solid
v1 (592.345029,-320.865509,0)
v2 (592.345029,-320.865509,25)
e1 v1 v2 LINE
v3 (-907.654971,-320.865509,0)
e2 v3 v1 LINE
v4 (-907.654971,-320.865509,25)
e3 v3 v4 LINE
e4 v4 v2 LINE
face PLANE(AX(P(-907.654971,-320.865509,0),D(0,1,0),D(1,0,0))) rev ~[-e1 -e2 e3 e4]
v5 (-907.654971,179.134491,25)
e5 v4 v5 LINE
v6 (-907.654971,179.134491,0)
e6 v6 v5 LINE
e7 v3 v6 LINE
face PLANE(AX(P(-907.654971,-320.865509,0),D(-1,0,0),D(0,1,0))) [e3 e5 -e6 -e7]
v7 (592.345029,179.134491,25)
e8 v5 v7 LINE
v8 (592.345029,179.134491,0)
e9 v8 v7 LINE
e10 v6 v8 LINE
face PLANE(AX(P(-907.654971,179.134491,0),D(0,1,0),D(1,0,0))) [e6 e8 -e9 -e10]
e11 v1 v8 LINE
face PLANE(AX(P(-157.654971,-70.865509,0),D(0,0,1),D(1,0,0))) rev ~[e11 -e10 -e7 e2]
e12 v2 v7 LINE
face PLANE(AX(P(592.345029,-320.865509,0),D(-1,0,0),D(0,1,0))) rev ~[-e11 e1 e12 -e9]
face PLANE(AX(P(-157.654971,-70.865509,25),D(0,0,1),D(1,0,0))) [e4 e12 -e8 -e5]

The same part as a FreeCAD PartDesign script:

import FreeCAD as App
import Part
import Sketcher
from FreeCAD import Vector


def add_polygon(sketch, points):
    """Adds a closed chain of lines whose ends are joined by coincident constraints."""
    first, n = sketch.GeometryCount, len(points)
    for a, b in zip(points, points[1:] + points[:1]):
        sketch.addGeometry(Part.LineSegment(App.Vector(*a, 0), App.Vector(*b, 0)), False)
    for i in range(n):
        sketch.addConstraint(Sketcher.Constraint("Coincident", first + i, 2, first + (i + 1) % n, 1))

doc = App.newDocument("Part")
body = doc.addObject("PartDesign::Body", "Body")

sketch1 = body.newObject("Sketcher::SketchObject", "Sketch")
sketch1.AttachmentSupport = (doc.getObject("XY_Plane"), [""])
sketch1.MapMode = "FlatFace"
add_polygon(sketch1, [(-908, 179), (-908, -321), (592, -321), (592, 179)])
sketch1.addConstraint(Sketcher.Constraint("Vertical", 0))
sketch1.addConstraint(Sketcher.Constraint("Horizontal", 1))
sketch1.addConstraint(Sketcher.Constraint("Vertical", 2))
sketch1.addConstraint(Sketcher.Constraint("Horizontal", 3))
sketch1.addConstraint(Sketcher.Constraint("DistanceX", 1, 1, 1, 2, 1500.0))
sketch1.addConstraint(Sketcher.Constraint("DistanceY", 0, 2, 0, 1, 500.0))
sketch1.addConstraint(Sketcher.Constraint("DistanceX", 0, 2, -1, 1, 907.654971))
sketch1.addConstraint(Sketcher.Constraint("DistanceY", 0, 2, -1, 1, 320.865509))
pad1 = body.newObject("PartDesign::Pad", "Pad")
pad1.Profile = sketch1
pad1.Length = 25

sketch2 = body.newObject("Sketcher::SketchObject", "Sketch001")
sketch2.AttachmentSupport = (doc.getObject("XY_Plane"), [""])
sketch2.MapMode = "FlatFace"
add_polygon(sketch2, [(-908, 179), (-908, -321), (592, -321), (592, 179)])
sketch2.addConstraint(Sketcher.Constraint("Vertical", 0))
sketch2.addConstraint(Sketcher.Constraint("Horizontal", 1))
sketch2.addConstraint(Sketcher.Constraint("Vertical", 2))
sketch2.addConstraint(Sketcher.Constraint("Horizontal", 3))
sketch2.addConstraint(Sketcher.Constraint("DistanceX", 1, 1, 1, 2, 1500.0))
sketch2.addConstraint(Sketcher.Constraint("DistanceY", 0, 2, 0, 1, 500.0))
sketch2.addConstraint(Sketcher.Constraint("DistanceX", 0, 2, -1, 1, 907.654971))
sketch2.addConstraint(Sketcher.Constraint("DistanceY", 0, 2, -1, 1, 320.865509))
pad2 = body.newObject("PartDesign::Pad", "Pad001")
pad2.Profile = sketch2
pad2.Length = 25

sketch3 = body.newObject("Sketcher::SketchObject", "Sketch002")
sketch3.AttachmentSupport = (doc.getObject("XY_Plane"), [""])
sketch3.MapMode = "FlatFace"
add_polygon(sketch3, [(-908, 179), (-908, -321), (592, -321), (592, 179)])
sketch3.addConstraint(Sketcher.Constraint("Vertical", 0))
sketch3.addConstraint(Sketcher.Constraint("Horizontal", 1))
sketch3.addConstraint(Sketcher.Constraint("Vertical", 2))
sketch3.addConstraint(Sketcher.Constraint("Horizontal", 3))
sketch3.addConstraint(Sketcher.Constraint("DistanceX", 1, 1, 1, 2, 1500.0))
sketch3.addConstraint(Sketcher.Constraint("DistanceY", 0, 2, 0, 1, 500.0))
sketch3.addConstraint(Sketcher.Constraint("DistanceX", 0, 2, -1, 1, 907.654971))
sketch3.addConstraint(Sketcher.Constraint("DistanceY", 0, 2, -1, 1, 320.865509))
pad3 = body.newObject("PartDesign::Pad", "Pad002")
pad3.Profile = sketch3
pad3.Length = 25

doc.recompute()
